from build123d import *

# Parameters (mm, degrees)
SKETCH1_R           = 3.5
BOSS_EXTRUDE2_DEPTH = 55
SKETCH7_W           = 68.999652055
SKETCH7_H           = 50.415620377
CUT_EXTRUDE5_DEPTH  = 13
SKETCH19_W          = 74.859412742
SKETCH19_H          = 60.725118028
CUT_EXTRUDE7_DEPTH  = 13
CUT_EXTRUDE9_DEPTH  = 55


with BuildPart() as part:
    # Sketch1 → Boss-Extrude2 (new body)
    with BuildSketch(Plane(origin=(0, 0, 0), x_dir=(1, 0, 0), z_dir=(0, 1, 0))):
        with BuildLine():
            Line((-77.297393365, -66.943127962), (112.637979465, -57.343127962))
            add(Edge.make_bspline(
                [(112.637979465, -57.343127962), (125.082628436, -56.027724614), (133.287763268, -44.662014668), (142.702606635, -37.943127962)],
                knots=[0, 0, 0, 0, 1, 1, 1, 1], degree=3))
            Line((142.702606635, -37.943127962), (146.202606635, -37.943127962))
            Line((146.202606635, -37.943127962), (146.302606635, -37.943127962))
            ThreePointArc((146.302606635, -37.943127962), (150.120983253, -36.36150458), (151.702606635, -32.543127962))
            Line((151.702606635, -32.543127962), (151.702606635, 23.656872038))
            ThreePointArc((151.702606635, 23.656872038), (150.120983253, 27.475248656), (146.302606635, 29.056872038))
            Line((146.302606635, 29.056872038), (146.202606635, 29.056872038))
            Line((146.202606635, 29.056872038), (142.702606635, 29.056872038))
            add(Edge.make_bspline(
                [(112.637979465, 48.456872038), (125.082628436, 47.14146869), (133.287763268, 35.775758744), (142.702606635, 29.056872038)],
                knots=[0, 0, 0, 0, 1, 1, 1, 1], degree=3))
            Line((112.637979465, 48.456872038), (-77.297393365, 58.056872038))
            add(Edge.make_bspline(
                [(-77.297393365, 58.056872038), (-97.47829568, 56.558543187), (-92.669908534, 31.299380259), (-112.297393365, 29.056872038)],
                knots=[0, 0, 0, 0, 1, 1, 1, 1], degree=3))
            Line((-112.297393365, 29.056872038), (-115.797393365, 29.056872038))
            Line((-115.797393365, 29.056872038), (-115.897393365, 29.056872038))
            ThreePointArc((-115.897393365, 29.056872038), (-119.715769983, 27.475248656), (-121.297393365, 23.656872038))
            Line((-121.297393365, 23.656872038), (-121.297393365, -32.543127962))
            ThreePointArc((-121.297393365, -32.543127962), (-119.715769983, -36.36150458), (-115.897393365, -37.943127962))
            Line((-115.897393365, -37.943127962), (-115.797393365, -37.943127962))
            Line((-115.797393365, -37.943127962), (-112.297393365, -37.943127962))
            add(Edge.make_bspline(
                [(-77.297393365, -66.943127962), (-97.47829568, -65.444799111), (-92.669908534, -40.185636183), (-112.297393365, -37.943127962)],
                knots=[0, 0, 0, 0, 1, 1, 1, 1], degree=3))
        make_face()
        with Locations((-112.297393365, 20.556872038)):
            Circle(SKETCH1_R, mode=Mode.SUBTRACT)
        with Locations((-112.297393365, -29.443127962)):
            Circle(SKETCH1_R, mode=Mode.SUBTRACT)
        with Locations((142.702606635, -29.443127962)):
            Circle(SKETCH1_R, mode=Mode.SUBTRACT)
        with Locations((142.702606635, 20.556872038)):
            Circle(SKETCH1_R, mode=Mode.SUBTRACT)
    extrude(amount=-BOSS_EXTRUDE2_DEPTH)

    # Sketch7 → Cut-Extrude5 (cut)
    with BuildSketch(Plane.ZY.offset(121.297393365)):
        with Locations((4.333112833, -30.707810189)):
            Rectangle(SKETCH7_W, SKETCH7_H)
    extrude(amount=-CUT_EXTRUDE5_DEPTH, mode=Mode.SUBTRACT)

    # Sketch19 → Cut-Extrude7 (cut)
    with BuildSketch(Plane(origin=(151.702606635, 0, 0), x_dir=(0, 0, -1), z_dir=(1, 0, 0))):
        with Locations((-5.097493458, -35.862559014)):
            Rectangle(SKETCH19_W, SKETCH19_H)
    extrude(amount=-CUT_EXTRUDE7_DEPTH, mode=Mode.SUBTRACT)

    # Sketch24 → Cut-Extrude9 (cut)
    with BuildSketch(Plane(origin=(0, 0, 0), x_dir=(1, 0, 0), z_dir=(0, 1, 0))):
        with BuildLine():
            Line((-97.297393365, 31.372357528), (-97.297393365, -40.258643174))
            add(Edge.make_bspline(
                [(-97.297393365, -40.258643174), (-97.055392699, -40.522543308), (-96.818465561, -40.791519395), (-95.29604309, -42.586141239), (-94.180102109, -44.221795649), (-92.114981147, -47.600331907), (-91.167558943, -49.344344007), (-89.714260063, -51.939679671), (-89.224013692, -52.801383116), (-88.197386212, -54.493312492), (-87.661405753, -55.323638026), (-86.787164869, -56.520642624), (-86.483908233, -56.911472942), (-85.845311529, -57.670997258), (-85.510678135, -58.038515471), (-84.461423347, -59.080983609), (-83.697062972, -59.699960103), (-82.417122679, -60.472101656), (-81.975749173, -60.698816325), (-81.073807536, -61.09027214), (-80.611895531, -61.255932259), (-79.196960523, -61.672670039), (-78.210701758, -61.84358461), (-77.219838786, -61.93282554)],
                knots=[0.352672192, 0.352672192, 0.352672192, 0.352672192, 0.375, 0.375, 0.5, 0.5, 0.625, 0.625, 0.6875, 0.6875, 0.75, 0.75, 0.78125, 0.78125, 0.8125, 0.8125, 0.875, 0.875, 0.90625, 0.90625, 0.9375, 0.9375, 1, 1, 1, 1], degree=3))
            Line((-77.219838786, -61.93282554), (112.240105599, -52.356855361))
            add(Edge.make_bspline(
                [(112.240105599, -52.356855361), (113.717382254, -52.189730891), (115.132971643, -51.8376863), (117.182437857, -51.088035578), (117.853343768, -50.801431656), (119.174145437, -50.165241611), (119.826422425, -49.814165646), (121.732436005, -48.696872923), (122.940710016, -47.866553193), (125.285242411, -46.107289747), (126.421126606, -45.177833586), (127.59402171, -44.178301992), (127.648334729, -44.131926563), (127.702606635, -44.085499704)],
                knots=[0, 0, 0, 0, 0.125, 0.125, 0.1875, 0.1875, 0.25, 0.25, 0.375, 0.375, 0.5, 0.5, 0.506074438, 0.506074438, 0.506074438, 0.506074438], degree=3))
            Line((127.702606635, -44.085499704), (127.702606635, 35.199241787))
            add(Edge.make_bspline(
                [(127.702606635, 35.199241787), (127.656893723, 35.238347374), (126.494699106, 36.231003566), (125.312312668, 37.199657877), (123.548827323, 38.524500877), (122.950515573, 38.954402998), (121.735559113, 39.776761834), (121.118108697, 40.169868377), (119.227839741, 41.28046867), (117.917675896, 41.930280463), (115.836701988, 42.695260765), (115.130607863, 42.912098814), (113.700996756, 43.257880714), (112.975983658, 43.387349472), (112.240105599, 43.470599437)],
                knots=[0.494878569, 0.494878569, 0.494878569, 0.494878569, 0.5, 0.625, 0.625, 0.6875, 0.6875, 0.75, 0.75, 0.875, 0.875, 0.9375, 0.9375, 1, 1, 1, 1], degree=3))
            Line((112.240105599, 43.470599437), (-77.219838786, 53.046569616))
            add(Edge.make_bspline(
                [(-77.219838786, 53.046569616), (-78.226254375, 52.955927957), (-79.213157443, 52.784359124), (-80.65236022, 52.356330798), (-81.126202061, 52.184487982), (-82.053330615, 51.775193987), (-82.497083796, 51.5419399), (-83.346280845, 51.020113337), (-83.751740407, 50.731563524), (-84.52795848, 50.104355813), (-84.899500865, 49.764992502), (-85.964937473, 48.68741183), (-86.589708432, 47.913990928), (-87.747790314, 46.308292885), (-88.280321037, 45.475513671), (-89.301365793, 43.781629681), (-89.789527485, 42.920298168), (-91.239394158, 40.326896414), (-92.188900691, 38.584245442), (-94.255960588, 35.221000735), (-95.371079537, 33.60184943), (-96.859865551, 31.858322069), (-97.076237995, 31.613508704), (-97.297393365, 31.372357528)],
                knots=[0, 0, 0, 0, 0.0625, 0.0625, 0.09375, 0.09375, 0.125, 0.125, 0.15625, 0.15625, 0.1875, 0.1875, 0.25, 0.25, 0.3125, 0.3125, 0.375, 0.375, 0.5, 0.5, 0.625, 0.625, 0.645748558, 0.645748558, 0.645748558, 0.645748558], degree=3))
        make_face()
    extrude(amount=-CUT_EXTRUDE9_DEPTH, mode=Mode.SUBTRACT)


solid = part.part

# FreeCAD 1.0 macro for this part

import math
import FreeCAD as App
import Part
import Sketcher

doc = App.newDocument("Part")
params = doc.addObject("Spreadsheet::Sheet", "Params")
for row, (alias, value) in enumerate([
    ("sketch1_diameter", "7 mm"),
    ("sketch1_radius", "5.4 mm"),
    ("sketch1_width", "3.6 mm"),
    ("pad1_length", "55 mm"),
    ("pocket1_length", "13 mm"),
    ("pocket2_length", "13 mm"),
    ("pocket3_length", "55 mm"),
], start=1):
    params.set(f"A{row}", alias)
    params.set(f"B{row}", "=" + value)
    params.setAlias(f"B{row}", alias)

body = doc.addObject("PartDesign::Body", "Body")

# Sketch on XZ plane
sketch1 = body.newObject("Sketcher::SketchObject", "Sketch")
sketch1.AttachmentSupport = (doc.getObject("XZ_Plane"), [""])
sketch1.MapMode = "FlatFace"
sketch1.addGeometry(Part.LineSegment(App.Vector(-77.297393, 66.943128, 0), App.Vector(112.637979, 57.343128, 0)), False)
sketch1.addGeometry(Part.BSplineCurve([App.Vector(112.637979, 57.343128, 0), App.Vector(125.082628, 56.027725, 0), App.Vector(133.287763, 44.662015, 0), App.Vector(142.702607, 37.943128, 0)], [4, 4], [0, 1], False, 3, [1, 1, 1, 1], False), False)
sketch1.addGeometry(Part.LineSegment(App.Vector(142.702607, 37.943128, 0), App.Vector(146.302607, 37.943128, 0)), False)
sketch1.addGeometry(Part.ArcOfCircle(Part.Circle(App.Vector(146.302607, 32.543128, 0), App.Vector(0, 0, 1), 5.4), math.radians(0), math.radians(90)), False)
sketch1.addGeometry(Part.LineSegment(App.Vector(151.702607, 32.543128, 0), App.Vector(151.702607, -23.656872, 0)), False)
sketch1.addGeometry(Part.ArcOfCircle(Part.Circle(App.Vector(146.302607, -23.656872, 0), App.Vector(0, 0, 1), 5.4), math.radians(-90), math.radians(0)), False)
sketch1.addGeometry(Part.LineSegment(App.Vector(146.302607, -29.056872, 0), App.Vector(142.702607, -29.056872, 0)), False)
sketch1.addGeometry(Part.BSplineCurve([App.Vector(112.637979, -48.456872, 0), App.Vector(125.082628, -47.141469, 0), App.Vector(133.287763, -35.775759, 0), App.Vector(142.702607, -29.056872, 0)], [4, 4], [0, 1], False, 3, [1, 1, 1, 1], False), False)
sketch1.addGeometry(Part.LineSegment(App.Vector(112.637979, -48.456872, 0), App.Vector(-77.297393, -58.056872, 0)), False)
sketch1.addGeometry(Part.BSplineCurve([App.Vector(-77.297393, -58.056872, 0), App.Vector(-97.478296, -56.558543, 0), App.Vector(-92.669909, -31.29938, 0), App.Vector(-112.297393, -29.056872, 0)], [4, 4], [0, 1], False, 3, [1, 1, 1, 1], False), False)
sketch1.addGeometry(Part.LineSegment(App.Vector(-112.297393, -29.056872, 0), App.Vector(-115.897393, -29.056872, 0)), False)
sketch1.addGeometry(Part.ArcOfCircle(Part.Circle(App.Vector(-115.897393, -23.656872, 0), App.Vector(0, 0, 1), 5.4), math.radians(-180), math.radians(-90)), False)
sketch1.addGeometry(Part.LineSegment(App.Vector(-121.297393, -23.656872, 0), App.Vector(-121.297393, 32.543128, 0)), False)
sketch1.addGeometry(Part.ArcOfCircle(Part.Circle(App.Vector(-115.897393, 32.543128, 0), App.Vector(0, 0, 1), 5.4), math.radians(90), math.radians(180)), False)
sketch1.addGeometry(Part.LineSegment(App.Vector(-115.897393, 37.943128, 0), App.Vector(-112.297393, 37.943128, 0)), False)
sketch1.addGeometry(Part.BSplineCurve([App.Vector(-77.297393, 66.943128, 0), App.Vector(-97.478296, 65.444799, 0), App.Vector(-92.669909, 40.185636, 0), App.Vector(-112.297393, 37.943128, 0)], [4, 4], [0, 1], False, 3, [1, 1, 1, 1], False), False)
sketch1.addGeometry(Part.Circle(App.Vector(-112.297393, 29.443128, 0), App.Vector(0, 0, 1), 3.5), False)
sketch1.addGeometry(Part.Circle(App.Vector(142.702607, 29.443128, 0), App.Vector(0, 0, 1), 3.5), False)
sketch1.addGeometry(Part.Circle(App.Vector(-112.297393, -20.556872, 0), App.Vector(0, 0, 1), 3.5), False)
sketch1.addGeometry(Part.Circle(App.Vector(142.702607, -20.556872, 0), App.Vector(0, 0, 1), 3.5), False)
sketch1.addConstraint(Sketcher.Constraint("Block", 1))
sketch1.addConstraint(Sketcher.Constraint("Block", 7))
sketch1.addConstraint(Sketcher.Constraint("Block", 9))
sketch1.addConstraint(Sketcher.Constraint("Block", 15))
sketch1.addConstraint(Sketcher.Constraint("Coincident", 0, 2, 1, 1))
sketch1.addConstraint(Sketcher.Constraint("Coincident", 1, 2, 2, 1))
sketch1.addConstraint(Sketcher.Constraint("Tangent", 2, 2, 3, 2))
sketch1.addConstraint(Sketcher.Constraint("Tangent", 3, 1, 4, 1))
sketch1.addConstraint(Sketcher.Constraint("Tangent", 4, 2, 5, 2))
sketch1.addConstraint(Sketcher.Constraint("Tangent", 5, 1, 6, 1))
sketch1.addConstraint(Sketcher.Constraint("Coincident", 6, 2, 7, 2))
sketch1.addConstraint(Sketcher.Constraint("Coincident", 7, 1, 8, 1))
sketch1.addConstraint(Sketcher.Constraint("Coincident", 8, 2, 9, 1))
sketch1.addConstraint(Sketcher.Constraint("Coincident", 9, 2, 10, 1))
sketch1.addConstraint(Sketcher.Constraint("Tangent", 10, 2, 11, 2))
sketch1.addConstraint(Sketcher.Constraint("Tangent", 11, 1, 12, 1))
sketch1.addConstraint(Sketcher.Constraint("Tangent", 12, 2, 13, 2))
sketch1.addConstraint(Sketcher.Constraint("Tangent", 13, 1, 14, 1))
sketch1.addConstraint(Sketcher.Constraint("Coincident", 14, 2, 15, 2))
sketch1.addConstraint(Sketcher.Constraint("Coincident", 15, 1, 0, 1))
sketch1.addConstraint(Sketcher.Constraint("Horizontal", 2))
sketch1.addConstraint(Sketcher.Constraint("Vertical", 4))
sketch1.addConstraint(Sketcher.Constraint("Horizontal", 6))
sketch1.addConstraint(Sketcher.Constraint("Horizontal", 10))
sketch1.addConstraint(Sketcher.Constraint("Vertical", 12))
sketch1.addConstraint(Sketcher.Constraint("Horizontal", 14))
sketch1.addConstraint(Sketcher.Constraint("Equal", 3, 5))
sketch1.addConstraint(Sketcher.Constraint("Equal", 5, 11))
sketch1.addConstraint(Sketcher.Constraint("Equal", 11, 13))
sketch1.addConstraint(Sketcher.Constraint("Equal", 16, 17))
sketch1.addConstraint(Sketcher.Constraint("Equal", 17, 18))
sketch1.addConstraint(Sketcher.Constraint("Equal", 18, 19))
sketch1.addConstraint(Sketcher.Constraint("Horizontal", 16, 3, 17, 3))
sketch1.addConstraint(Sketcher.Constraint("Horizontal", 18, 3, 19, 3))
sketch1.addConstraint(Sketcher.Constraint("Vertical", 16, 3, 18, 3))
sketch1.addConstraint(Sketcher.Constraint("Vertical", 17, 3, 19, 3))
sketch1.addConstraint(Sketcher.Constraint("Vertical", 19, 3, 6, 2))
sketch1.addConstraint(Sketcher.Constraint("Vertical", 18, 3, 14, 2))
sketch1.addConstraint(Sketcher.Constraint("Equal", 6, 10))
sketch1.addConstraint(Sketcher.Constraint("Diameter", 16, 7.0))
sketch1.addConstraint(Sketcher.Constraint("Radius", 3, 5.4))
sketch1.addConstraint(Sketcher.Constraint("DistanceX", 2, 1, 2, 2, 3.6))
sketch1.addConstraint(Sketcher.Constraint("DistanceY", 18, 3, 16, 3, 50.0))
sketch1.addConstraint(Sketcher.Constraint("DistanceY", 16, 3, 13, 3, 3.1))
sketch1.setExpression("Constraints[39]", "Params.sketch1_diameter")
sketch1.setExpression("Constraints[40]", "Params.sketch1_radius")
sketch1.setExpression("Constraints[41]", "Params.sketch1_width")
pad1 = body.newObject("PartDesign::Pad", "Pad")
pad1.Profile = sketch1
pad1.setExpression("Length", "Params.pad1_length")

# Sketch on YZ plane
sketch2 = body.newObject("Sketcher::SketchObject", "Sketch001")
sketch2.AttachmentSupport = (doc.getObject("YZ_Plane"), [""])
sketch2.MapMode = "FlatFace"
sketch2.AttachmentOffset = App.Placement(App.Vector(0, 0, -121.297393), App.Rotation())
sketch2.addGeometry(Part.LineSegment(App.Vector(-6, -30, 0), App.Vector(-56, -30, 0)), False)
sketch2.addGeometry(Part.LineSegment(App.Vector(-56, -30, 0), App.Vector(-56, 39, 0)), False)
sketch2.addGeometry(Part.LineSegment(App.Vector(-56, 39, 0), App.Vector(-6, 39, 0)), False)
sketch2.addGeometry(Part.LineSegment(App.Vector(-6, 39, 0), App.Vector(-6, -30, 0)), False)
sketch2.addConstraint(Sketcher.Constraint("Coincident", 0, 2, 1, 1))
sketch2.addConstraint(Sketcher.Constraint("Coincident", 1, 2, 2, 1))
sketch2.addConstraint(Sketcher.Constraint("Coincident", 2, 2, 3, 1))
sketch2.addConstraint(Sketcher.Constraint("Coincident", 3, 2, 0, 1))
sketch2.addConstraint(Sketcher.Constraint("Horizontal", 0))
sketch2.addConstraint(Sketcher.Constraint("Vertical", 1))
sketch2.addConstraint(Sketcher.Constraint("Horizontal", 2))
sketch2.addConstraint(Sketcher.Constraint("Vertical", 3))
sketch2.addConstraint(Sketcher.Constraint("DistanceX", 2, 2, -1, 1, 5.5))
sketch2.addConstraint(Sketcher.Constraint("DistanceX", 0, 2, 0, 1, 50.41562))
sketch2.addConstraint(Sketcher.Constraint("DistanceY", 1, 1, 1, 2, 68.999652))
sketch2.addConstraint(Sketcher.Constraint("DistanceY", -1, 1, 1, 2, 38.832939))
pocket1 = body.newObject("PartDesign::Pocket", "Pocket")
pocket1.Profile = sketch2
pocket1.setExpression("Length", "Params.pocket1_length")
pocket1.Reversed = True

# Sketch on YZ plane
sketch3 = body.newObject("Sketcher::SketchObject", "Sketch002")
sketch3.AttachmentSupport = (doc.getObject("YZ_Plane"), [""])
sketch3.MapMode = "FlatFace"
sketch3.AttachmentOffset = App.Placement(App.Vector(0, 0, 151.702607), App.Rotation())
sketch3.addGeometry(Part.LineSegment(App.Vector(-6, 43, 0), App.Vector(-66, 43, 0)), False)
sketch3.addGeometry(Part.LineSegment(App.Vector(-66, 43, 0), App.Vector(-66, -32, 0)), False)
sketch3.addGeometry(Part.LineSegment(App.Vector(-66, -32, 0), App.Vector(-6, -32, 0)), False)
sketch3.addGeometry(Part.LineSegment(App.Vector(-6, -32, 0), App.Vector(-6, 43, 0)), False)
sketch3.addConstraint(Sketcher.Constraint("Coincident", 0, 2, 1, 1))
sketch3.addConstraint(Sketcher.Constraint("Coincident", 1, 2, 2, 1))
sketch3.addConstraint(Sketcher.Constraint("Coincident", 2, 2, 3, 1))
sketch3.addConstraint(Sketcher.Constraint("Coincident", 3, 2, 0, 1))
sketch3.addConstraint(Sketcher.Constraint("Horizontal", 0))
sketch3.addConstraint(Sketcher.Constraint("Vertical", 1))
sketch3.addConstraint(Sketcher.Constraint("Horizontal", 2))
sketch3.addConstraint(Sketcher.Constraint("Vertical", 3))
sketch3.addConstraint(Sketcher.Constraint("DistanceX", 2, 2, -1, 1, 5.5))
sketch3.addConstraint(Sketcher.Constraint("DistanceX", 0, 2, 0, 1, 60.725118))
sketch3.addConstraint(Sketcher.Constraint("DistanceY", -1, 1, 0, 2, 42.5272))
sketch3.addConstraint(Sketcher.Constraint("DistanceY", 1, 2, 1, 1, 74.859413))
pocket2 = body.newObject("PartDesign::Pocket", "Pocket001")
pocket2.Profile = sketch3
pocket2.setExpression("Length", "Params.pocket2_length")

# Sketch on XZ plane
sketch4 = body.newObject("Sketcher::SketchObject", "Sketch003")
sketch4.AttachmentSupport = (doc.getObject("XZ_Plane"), [""])
sketch4.MapMode = "FlatFace"
sketch4.addGeometry(Part.LineSegment(App.Vector(-97.297393, -31.372358, 0), App.Vector(-97.297393, 40.258643, 0)), False)
sketch4.addGeometry(Part.BSplineCurve([App.Vector(-97.297393, 40.258643, 0), App.Vector(-97.055393, 40.522543, 0), App.Vector(-96.818466, 40.791519, 0), App.Vector(-95.296043, 42.586141, 0), App.Vector(-94.180102, 44.221796, 0), App.Vector(-92.114981, 47.600332, 0), App.Vector(-91.167559, 49.344344, 0), App.Vector(-89.71426, 51.93968, 0), App.Vector(-89.224014, 52.801383, 0), App.Vector(-88.197386, 54.493312, 0), App.Vector(-87.661406, 55.323638, 0), App.Vector(-86.787165, 56.520643, 0), App.Vector(-86.483908, 56.911473, 0), App.Vector(-85.845312, 57.670997, 0), App.Vector(-85.510678, 58.038515, 0), App.Vector(-84.461423, 59.080984, 0), App.Vector(-83.697063, 59.69996, 0), App.Vector(-82.417123, 60.472102, 0), App.Vector(-81.975749, 60.698816, 0), App.Vector(-81.073808, 61.090272, 0), App.Vector(-80.611896, 61.255932, 0), App.Vector(-79.196961, 61.67267, 0), App.Vector(-78.210702, 61.843585, 0), App.Vector(-77.219839, 61.932826, 0)], [4, 2, 2, 2, 2, 2, 2, 2, 2, 2, 2, 4], [0.352672192, 0.375, 0.5, 0.625, 0.6875, 0.75, 0.78125, 0.8125, 0.875, 0.90625, 0.9375, 1], False, 3, [1, 1, 1, 1, 1, 1, 1, 1, 1, 1, 1, 1, 1, 1, 1, 1, 1, 1, 1, 1, 1, 1, 1, 1], False), False)
sketch4.addGeometry(Part.LineSegment(App.Vector(-77.219839, 61.932826, 0), App.Vector(112.240106, 52.356855, 0)), False)
sketch4.addGeometry(Part.BSplineCurve([App.Vector(112.240106, 52.356855, 0), App.Vector(113.717382, 52.189731, 0), App.Vector(115.132972, 51.837686, 0), App.Vector(117.182438, 51.088036, 0), App.Vector(117.853344, 50.801432, 0), App.Vector(119.174145, 50.165242, 0), App.Vector(119.826422, 49.814166, 0), App.Vector(121.732436, 48.696873, 0), App.Vector(122.94071, 47.866553, 0), App.Vector(125.285242, 46.10729, 0), App.Vector(126.421127, 45.177834, 0), App.Vector(127.594022, 44.178302, 0), App.Vector(127.648335, 44.131927, 0), App.Vector(127.702607, 44.0855, 0)], [4, 2, 2, 2, 2, 2, 4], [0, 0.125, 0.1875, 0.25, 0.375, 0.5, 0.506074438], False, 3, [1, 1, 1, 1, 1, 1, 1, 1, 1, 1, 1, 1, 1, 1], False), False)
sketch4.addGeometry(Part.LineSegment(App.Vector(127.702607, 44.0855, 0), App.Vector(127.702607, -35.199242, 0)), False)
sketch4.addGeometry(Part.BSplineCurve([App.Vector(127.702607, -35.199242, 0), App.Vector(127.656894, -35.238347, 0), App.Vector(126.494699, -36.231004, 0), App.Vector(125.312313, -37.199658, 0), App.Vector(123.548827, -38.524501, 0), App.Vector(122.950516, -38.954403, 0), App.Vector(121.735559, -39.776762, 0), App.Vector(121.118109, -40.169868, 0), App.Vector(119.22784, -41.280469, 0), App.Vector(117.917676, -41.93028, 0), App.Vector(115.836702, -42.695261, 0), App.Vector(115.130608, -42.912099, 0), App.Vector(113.700997, -43.257881, 0), App.Vector(112.975984, -43.387349, 0), App.Vector(112.240106, -43.470599, 0)], [4, 1, 2, 2, 2, 2, 2, 4], [0.494878569, 0.5, 0.625, 0.6875, 0.75, 0.875, 0.9375, 1], False, 3, [1, 1, 1, 1, 1, 1, 1, 1, 1, 1, 1, 1, 1, 1, 1], False), False)
sketch4.addGeometry(Part.LineSegment(App.Vector(112.240106, -43.470599, 0), App.Vector(-77.219839, -53.04657, 0)), False)
sketch4.addGeometry(Part.BSplineCurve([App.Vector(-77.219839, -53.04657, 0), App.Vector(-78.226254, -52.955928, 0), App.Vector(-79.213157, -52.784359, 0), App.Vector(-80.65236, -52.356331, 0), App.Vector(-81.126202, -52.184488, 0), App.Vector(-82.053331, -51.775194, 0), App.Vector(-82.497084, -51.54194, 0), App.Vector(-83.346281, -51.020113, 0), App.Vector(-83.75174, -50.731564, 0), App.Vector(-84.527958, -50.104356, 0), App.Vector(-84.899501, -49.764993, 0), App.Vector(-85.964937, -48.687412, 0), App.Vector(-86.589708, -47.913991, 0), App.Vector(-87.74779, -46.308293, 0), App.Vector(-88.280321, -45.475514, 0), App.Vector(-89.301366, -43.78163, 0), App.Vector(-89.789527, -42.920298, 0), App.Vector(-91.239394, -40.326896, 0), App.Vector(-92.188901, -38.584245, 0), App.Vector(-94.255961, -35.221001, 0), App.Vector(-95.37108, -33.601849, 0), App.Vector(-96.859866, -31.858322, 0), App.Vector(-97.076238, -31.613509, 0), App.Vector(-97.297393, -31.372358, 0)], [4, 2, 2, 2, 2, 2, 2, 2, 2, 2, 2, 4], [0, 0.0625, 0.09375, 0.125, 0.15625, 0.1875, 0.25, 0.3125, 0.375, 0.5, 0.625, 0.645748558], False, 3, [1, 1, 1, 1, 1, 1, 1, 1, 1, 1, 1, 1, 1, 1, 1, 1, 1, 1, 1, 1, 1, 1, 1, 1], False), False)
sketch4.addConstraint(Sketcher.Constraint("Block", 1))
sketch4.addConstraint(Sketcher.Constraint("Block", 3))
sketch4.addConstraint(Sketcher.Constraint("Block", 5))
sketch4.addConstraint(Sketcher.Constraint("Block", 7))
sketch4.addConstraint(Sketcher.Constraint("Coincident", 0, 2, 1, 1))
sketch4.addConstraint(Sketcher.Constraint("Coincident", 1, 2, 2, 1))
sketch4.addConstraint(Sketcher.Constraint("Coincident", 2, 2, 3, 1))
sketch4.addConstraint(Sketcher.Constraint("Coincident", 3, 2, 4, 1))
sketch4.addConstraint(Sketcher.Constraint("Coincident", 4, 2, 5, 1))
sketch4.addConstraint(Sketcher.Constraint("Coincident", 5, 2, 6, 1))
sketch4.addConstraint(Sketcher.Constraint("Coincident", 6, 2, 7, 1))
sketch4.addConstraint(Sketcher.Constraint("Coincident", 7, 2, 0, 1))
pocket3 = body.newObject("PartDesign::Pocket", "Pocket002")
pocket3.Profile = sketch4
pocket3.setExpression("Length", "Params.pocket3_length")
pocket3.Reversed = True

doc.recompute()
